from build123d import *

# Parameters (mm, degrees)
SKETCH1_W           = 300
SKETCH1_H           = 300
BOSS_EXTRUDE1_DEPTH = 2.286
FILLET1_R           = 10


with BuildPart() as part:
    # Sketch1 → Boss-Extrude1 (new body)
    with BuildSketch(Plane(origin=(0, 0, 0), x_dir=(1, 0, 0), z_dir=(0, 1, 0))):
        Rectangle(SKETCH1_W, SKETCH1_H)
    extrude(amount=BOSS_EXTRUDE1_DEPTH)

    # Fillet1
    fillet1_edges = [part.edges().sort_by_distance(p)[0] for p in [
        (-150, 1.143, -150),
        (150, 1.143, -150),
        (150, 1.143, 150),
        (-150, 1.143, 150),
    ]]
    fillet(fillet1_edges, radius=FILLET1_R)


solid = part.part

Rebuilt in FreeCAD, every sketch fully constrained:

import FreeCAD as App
import Part
import Sketcher
Q = App.Units.Quantity


def edges_at(feature, points):
    """Names of the edges that pass closest to the given points."""
    edges = feature.Shape.Edges
    near = lambda p: min(range(len(edges)), key=lambda i: edges[i].distToShape(Part.Vertex(*p))[0])
    return sorted({f"Edge{near(p) + 1}" for p in points})


def add_polygon(sketch, points):
    """Adds a closed chain of lines whose ends are joined by coincident constraints."""
    first, n = sketch.GeometryCount, len(points)
    for a, b in zip(points, points[1:] + points[:1]):
        sketch.addGeometry(Part.LineSegment(App.Vector(*a, 0), App.Vector(*b, 0)), False)
    for i in range(n):
        sketch.addConstraint(Sketcher.Constraint("Coincident", first + i, 2, first + (i + 1) % n, 1))

doc = App.newDocument("Part")
body = doc.addObject("PartDesign::Body", "Body")

# Sketch on XZ plane
sketch1 = doc.addObject("Sketcher::SketchObject", "Sketch")
body.addObject(sketch1)
sketch1.AttachmentSupport = (doc.XZ_Plane, [""])
sketch1.MapMode = "FlatFace"
add_polygon(sketch1, [(-150, -150), (-150, 150), (150, 150), (150, -150)])  # lines 0-3
sketch1.addConstraint([
    Sketcher.Constraint("Vertical", 0),
    Sketcher.Constraint("Horizontal", 1),
    Sketcher.Constraint("Vertical", 2),
    Sketcher.Constraint("Horizontal", 3),
    Sketcher.Constraint("Symmetric", 0, 2, 2, 2, -1, 1),
    Sketcher.Constraint("Equal", 3, 0),
    Sketcher.Constraint("DistanceX", 1, 1, 1, 2, Q("300 mm")),
])
pad1 = doc.addObject("PartDesign::Pad", "Pad")
body.addObject(pad1)
pad1.Profile = sketch1
pad1.Length = 2.286
pad1.Reversed = True
doc.recompute()

fillet = doc.addObject("PartDesign::Fillet", "Fillet")
body.addObject(fillet)
fillet.Base = (pad1, edges_at(pad1, [
    (-150, 1.143, -150),
    (150, 1.143, -150),
    (150, 1.143, 150),
    (-150, 1.143, 150),
]))
fillet.Radius = 10

doc.recompute()
